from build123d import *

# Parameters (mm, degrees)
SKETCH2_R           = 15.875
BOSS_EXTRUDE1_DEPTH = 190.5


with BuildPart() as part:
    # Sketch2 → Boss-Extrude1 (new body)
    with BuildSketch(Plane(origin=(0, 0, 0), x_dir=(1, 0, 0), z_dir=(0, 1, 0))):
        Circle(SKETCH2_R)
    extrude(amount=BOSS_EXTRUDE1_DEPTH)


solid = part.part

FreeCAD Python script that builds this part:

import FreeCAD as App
import Part
import Sketcher

V = App.Vector
Q = App.Units.Quantity

doc = App.newDocument("Part")
body = doc.addObject("PartDesign::Body", "Body")

# Sketch on XZ plane
sketch1 = doc.addObject("Sketcher::SketchObject", "Sketch")
body.addObject(sketch1)
sketch1.AttachmentSupport = (doc.XZ_Plane, [""])
sketch1.MapMode = "FlatFace"
sketch1.addGeometry(Part.Circle(V(0, 0, 0), V(0, 0, 1), 15.875), False)
sketch1.addConstraint([
    Sketcher.Constraint("Coincident", 0, 3, -1, 1),
    Sketcher.Constraint("Diameter", 0, Q("1.25 in")),
])
pad1 = doc.addObject("PartDesign::Pad", "Pad")
body.addObject(pad1)
pad1.Profile = sketch1
pad1.Length = Q("7.5 in")
pad1.Reversed = True

doc.recompute()
